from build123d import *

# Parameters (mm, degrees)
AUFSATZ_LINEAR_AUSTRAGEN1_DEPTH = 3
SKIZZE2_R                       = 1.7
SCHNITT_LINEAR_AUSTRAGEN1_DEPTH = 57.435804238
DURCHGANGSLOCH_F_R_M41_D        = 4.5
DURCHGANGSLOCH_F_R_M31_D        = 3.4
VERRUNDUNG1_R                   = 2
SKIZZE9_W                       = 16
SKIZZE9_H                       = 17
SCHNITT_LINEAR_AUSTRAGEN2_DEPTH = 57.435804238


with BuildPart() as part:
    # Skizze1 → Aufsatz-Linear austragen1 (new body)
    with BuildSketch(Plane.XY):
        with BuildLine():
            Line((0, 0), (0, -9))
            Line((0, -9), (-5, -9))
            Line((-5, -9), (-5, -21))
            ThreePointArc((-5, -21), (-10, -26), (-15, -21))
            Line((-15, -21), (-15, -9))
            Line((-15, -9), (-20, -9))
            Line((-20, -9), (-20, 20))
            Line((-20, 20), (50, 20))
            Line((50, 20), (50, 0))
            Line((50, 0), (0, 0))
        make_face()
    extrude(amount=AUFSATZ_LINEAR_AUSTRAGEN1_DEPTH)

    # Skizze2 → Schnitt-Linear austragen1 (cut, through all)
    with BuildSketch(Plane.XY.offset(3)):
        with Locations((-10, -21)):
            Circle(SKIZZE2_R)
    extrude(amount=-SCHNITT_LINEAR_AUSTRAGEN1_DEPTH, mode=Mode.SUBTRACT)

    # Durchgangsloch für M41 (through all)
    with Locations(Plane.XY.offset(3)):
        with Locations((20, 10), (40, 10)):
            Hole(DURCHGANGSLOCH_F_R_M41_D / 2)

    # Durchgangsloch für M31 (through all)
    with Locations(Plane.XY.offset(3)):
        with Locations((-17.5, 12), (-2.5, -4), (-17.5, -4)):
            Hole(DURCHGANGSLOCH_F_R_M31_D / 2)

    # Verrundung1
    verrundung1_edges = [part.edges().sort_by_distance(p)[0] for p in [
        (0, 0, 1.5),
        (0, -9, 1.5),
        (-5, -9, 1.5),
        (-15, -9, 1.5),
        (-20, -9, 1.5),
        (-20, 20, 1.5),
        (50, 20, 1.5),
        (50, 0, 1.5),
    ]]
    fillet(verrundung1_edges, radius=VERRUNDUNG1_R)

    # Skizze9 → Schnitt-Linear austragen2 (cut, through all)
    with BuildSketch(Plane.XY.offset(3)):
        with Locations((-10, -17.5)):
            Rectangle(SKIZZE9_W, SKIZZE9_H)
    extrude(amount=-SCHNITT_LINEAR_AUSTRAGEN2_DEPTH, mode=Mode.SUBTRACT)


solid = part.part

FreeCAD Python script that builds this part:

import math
import FreeCAD as App
import Part
import Sketcher
from FreeCAD import Vector


def edges_at(feature, points):
    """Names of the edges that pass closest to the given points."""
    edges = feature.Shape.Edges
    near = lambda p: min(range(len(edges)), key=lambda i: edges[i].distToShape(Part.Vertex(*p))[0])
    return sorted({f"Edge{near(p) + 1}" for p in points})

doc = App.newDocument("Part")
body = doc.addObject("PartDesign::Body", "Body")

# Sketch on XY plane
sketch1 = body.newObject("Sketcher::SketchObject", "Sketch")
sketch1.AttachmentSupport = (doc.getObject("XY_Plane"), [""])
sketch1.MapMode = "FlatFace"
sketch1.addGeometry([
    Part.LineSegment(Vector(0, -9, 0), Vector(0, 0, 0)),  # 0
    Part.LineSegment(Vector(0, 0, 0), Vector(50, 0, 0)),  # 1
    Part.LineSegment(Vector(50, 0, 0), Vector(50, 20, 0)),  # 2
    Part.LineSegment(Vector(50, 20, 0), Vector(-20, 20, 0)),  # 3
    Part.LineSegment(Vector(-20, 20, 0), Vector(-20, -9, 0)),  # 4
    Part.LineSegment(Vector(-20, -9, 0), Vector(-15, -9, 0)),  # 5
    Part.LineSegment(Vector(-15, -9, 0), Vector(-15, -21, 0)),  # 6
    Part.ArcOfCircle(Part.Circle(Vector(-10, -21, 0), Vector(0, 0, 1), 5), math.radians(180), math.radians(360)),  # 7
    Part.LineSegment(Vector(-5, -21, 0), Vector(-5, -9, 0)),  # 8
    Part.LineSegment(Vector(-5, -9, 0), Vector(0, -9, 0)),  # 9
], False)
sketch1.addConstraint([
    Sketcher.Constraint("Coincident", 0, 2, 1, 1),
    Sketcher.Constraint("Coincident", 1, 2, 2, 1),
    Sketcher.Constraint("Coincident", 2, 2, 3, 1),
    Sketcher.Constraint("Coincident", 3, 2, 4, 1),
    Sketcher.Constraint("Coincident", 4, 2, 5, 1),
    Sketcher.Constraint("Coincident", 5, 2, 6, 1),
    Sketcher.Constraint("Tangent", 6, 2, 7, 1),
    Sketcher.Constraint("Tangent", 7, 2, 8, 1),
    Sketcher.Constraint("Coincident", 8, 2, 9, 1),
    Sketcher.Constraint("Coincident", 9, 2, 0, 1),
    Sketcher.Constraint("Vertical", 0),
    Sketcher.Constraint("Horizontal", 1),
    Sketcher.Constraint("Vertical", 2),
    Sketcher.Constraint("Horizontal", 3),
    Sketcher.Constraint("Vertical", 4),
    Sketcher.Constraint("Horizontal", 5),
    Sketcher.Constraint("Vertical", 6),
    Sketcher.Constraint("Vertical", 8),
    Sketcher.Constraint("Horizontal", 9),
    Sketcher.Constraint("Coincident", 0, 2, -1, 1),
    Sketcher.Constraint("Horizontal", 5, 2, 8, 2),
    Sketcher.Constraint("Equal", 5, 9),
    Sketcher.Constraint("Radius", 7, 5.0),
    Sketcher.Constraint("DistanceX", 1, 1, 1, 2, 50.0),
    Sketcher.Constraint("DistanceX", 3, 2, 3, 1, 70.0),
    Sketcher.Constraint("DistanceY", 0, 1, 0, 2, 9.0),
    Sketcher.Constraint("DistanceY", 2, 1, 2, 2, 20.0),
    Sketcher.Constraint("DistanceY", 6, 2, 6, 1, 12.0),
])
pad1 = body.newObject("PartDesign::Pad", "Pad")
pad1.Profile = sketch1
pad1.Length = 3

# Sketch on XY plane
sketch2 = body.newObject("Sketcher::SketchObject", "Sketch001")
sketch2.AttachmentSupport = (doc.getObject("XY_Plane"), [""])
sketch2.MapMode = "FlatFace"
sketch2.AttachmentOffset = App.Placement(Vector(0, 0, 3), App.Rotation())
sketch2.addGeometry(Part.Circle(Vector(-10, -21, 0), Vector(0, 0, 1), 1.7), False)
sketch2.addConstraint([
    Sketcher.Constraint("Diameter", 0, 3.4),
    Sketcher.Constraint("DistanceX", 0, 3, -1, 1, 10.0),
    Sketcher.Constraint("DistanceY", 0, 3, -1, 1, 21.0),
])
pocket1 = body.newObject("PartDesign::Pocket", "Pocket")
pocket1.Profile = sketch2
pocket1.Type = "ThroughAll"

# Sketch on XY plane
sketch3 = body.newObject("Sketcher::SketchObject", "Sketch002")
sketch3.AttachmentSupport = (doc.getObject("XY_Plane"), [""])
sketch3.MapMode = "FlatFace"
sketch3.AttachmentOffset = App.Placement(Vector(0, 0, 3), App.Rotation())
sketch3.addGeometry([
    Part.Circle(Vector(20, 10, 0), Vector(0, 0, 1), 2.2),
    Part.Circle(Vector(40, 10, 0), Vector(0, 0, 1), 2.2),
], False)
sketch3.addConstraint([
    Sketcher.Constraint("Equal", 0, 1),
    Sketcher.Constraint("Horizontal", 0, 3, 1, 3),
    Sketcher.Constraint("Diameter", 0, 4.5),
    Sketcher.Constraint("DistanceX", -1, 1, 0, 3, 20.0),
    Sketcher.Constraint("DistanceY", -1, 1, 0, 3, 10.0),
    Sketcher.Constraint("DistanceX", -1, 1, 1, 3, 40.0),
])
doc.recompute()
hole = body.newObject("PartDesign::Hole", "Hole")
hole.Profile = sketch3
hole.ThreadType = "None"
hole.Diameter = 4.5
hole.DepthType = "ThroughAll"

# Sketch on XY plane
sketch4 = body.newObject("Sketcher::SketchObject", "Sketch003")
sketch4.AttachmentSupport = (doc.getObject("XY_Plane"), [""])
sketch4.MapMode = "FlatFace"
sketch4.AttachmentOffset = App.Placement(Vector(0, 0, 3), App.Rotation())
sketch4.addGeometry([
    Part.Circle(Vector(-17.5, 12, 0), Vector(0, 0, 1), 1.7),
    Part.Circle(Vector(-2.5, -4, 0), Vector(0, 0, 1), 1.7),
    Part.Circle(Vector(-17.5, -4, 0), Vector(0, 0, 1), 1.7),
], False)
sketch4.addConstraint([
    Sketcher.Constraint("Equal", 0, 1),
    Sketcher.Constraint("Equal", 1, 2),
    Sketcher.Constraint("Horizontal", 1, 3, 2, 3),
    Sketcher.Constraint("Vertical", 0, 3, 2, 3),
    Sketcher.Constraint("Diameter", 0, 3.4),
    Sketcher.Constraint("DistanceY", -1, 1, 0, 3, 12.0),
    Sketcher.Constraint("DistanceY", 1, 3, -1, 1, 4.0),
    Sketcher.Constraint("DistanceX", 0, 3, 1, 3, 15.0),
    Sketcher.Constraint("DistanceX", 0, 3, -1, 1, 17.5),
])
doc.recompute()
hole2 = body.newObject("PartDesign::Hole", "Hole001")
hole2.Profile = sketch4
hole2.ThreadType = "None"
hole2.Diameter = 3.4
hole2.DepthType = "ThroughAll"
doc.recompute()

fillet = body.newObject("PartDesign::Fillet", "Fillet")
fillet.Base = (hole2, edges_at(hole2, [
    (0, 0, 1.5),
    (0, -9, 1.5),
    (-5, -9, 1.5),
    (-15, -9, 1.5),
    (-20, -9, 1.5),
    (-20, 20, 1.5),
    (50, 20, 1.5),
    (50, 0, 1.5),
]))
fillet.Radius = 2

# Sketch on XY plane
sketch5 = body.newObject("Sketcher::SketchObject", "Sketch004")
sketch5.AttachmentSupport = (doc.getObject("XY_Plane"), [""])
sketch5.MapMode = "FlatFace"
sketch5.AttachmentOffset = App.Placement(Vector(0, 0, 3), App.Rotation())
sketch5.addGeometry([
    Part.LineSegment(Vector(-18, -9, 0), Vector(-18, -26, 0)),
    Part.LineSegment(Vector(-18, -26, 0), Vector(-2, -26, 0)),
    Part.LineSegment(Vector(-2, -26, 0), Vector(-2, -9, 0)),
    Part.LineSegment(Vector(-2, -9, 0), Vector(-18, -9, 0)),
], False)
sketch5.addConstraint([
    Sketcher.Constraint("Coincident", 0, 2, 1, 1),
    Sketcher.Constraint("Coincident", 1, 2, 2, 1),
    Sketcher.Constraint("Coincident", 2, 2, 3, 1),
    Sketcher.Constraint("Coincident", 3, 2, 0, 1),
    Sketcher.Constraint("Vertical", 0),
    Sketcher.Constraint("Horizontal", 1),
    Sketcher.Constraint("Vertical", 2),
    Sketcher.Constraint("Horizontal", 3),
    Sketcher.Constraint("DistanceX", 1, 1, 1, 2, 16.0),
    Sketcher.Constraint("DistanceY", 0, 2, 0, 1, 17.0),
    Sketcher.Constraint("DistanceX", 0, 2, -1, 1, 18.0),
    Sketcher.Constraint("DistanceY", 0, 2, -1, 1, 26.0),
])
pocket2 = body.newObject("PartDesign::Pocket", "Pocket001")
pocket2.Profile = sketch5
pocket2.Type = "ThroughAll"

doc.recompute()
